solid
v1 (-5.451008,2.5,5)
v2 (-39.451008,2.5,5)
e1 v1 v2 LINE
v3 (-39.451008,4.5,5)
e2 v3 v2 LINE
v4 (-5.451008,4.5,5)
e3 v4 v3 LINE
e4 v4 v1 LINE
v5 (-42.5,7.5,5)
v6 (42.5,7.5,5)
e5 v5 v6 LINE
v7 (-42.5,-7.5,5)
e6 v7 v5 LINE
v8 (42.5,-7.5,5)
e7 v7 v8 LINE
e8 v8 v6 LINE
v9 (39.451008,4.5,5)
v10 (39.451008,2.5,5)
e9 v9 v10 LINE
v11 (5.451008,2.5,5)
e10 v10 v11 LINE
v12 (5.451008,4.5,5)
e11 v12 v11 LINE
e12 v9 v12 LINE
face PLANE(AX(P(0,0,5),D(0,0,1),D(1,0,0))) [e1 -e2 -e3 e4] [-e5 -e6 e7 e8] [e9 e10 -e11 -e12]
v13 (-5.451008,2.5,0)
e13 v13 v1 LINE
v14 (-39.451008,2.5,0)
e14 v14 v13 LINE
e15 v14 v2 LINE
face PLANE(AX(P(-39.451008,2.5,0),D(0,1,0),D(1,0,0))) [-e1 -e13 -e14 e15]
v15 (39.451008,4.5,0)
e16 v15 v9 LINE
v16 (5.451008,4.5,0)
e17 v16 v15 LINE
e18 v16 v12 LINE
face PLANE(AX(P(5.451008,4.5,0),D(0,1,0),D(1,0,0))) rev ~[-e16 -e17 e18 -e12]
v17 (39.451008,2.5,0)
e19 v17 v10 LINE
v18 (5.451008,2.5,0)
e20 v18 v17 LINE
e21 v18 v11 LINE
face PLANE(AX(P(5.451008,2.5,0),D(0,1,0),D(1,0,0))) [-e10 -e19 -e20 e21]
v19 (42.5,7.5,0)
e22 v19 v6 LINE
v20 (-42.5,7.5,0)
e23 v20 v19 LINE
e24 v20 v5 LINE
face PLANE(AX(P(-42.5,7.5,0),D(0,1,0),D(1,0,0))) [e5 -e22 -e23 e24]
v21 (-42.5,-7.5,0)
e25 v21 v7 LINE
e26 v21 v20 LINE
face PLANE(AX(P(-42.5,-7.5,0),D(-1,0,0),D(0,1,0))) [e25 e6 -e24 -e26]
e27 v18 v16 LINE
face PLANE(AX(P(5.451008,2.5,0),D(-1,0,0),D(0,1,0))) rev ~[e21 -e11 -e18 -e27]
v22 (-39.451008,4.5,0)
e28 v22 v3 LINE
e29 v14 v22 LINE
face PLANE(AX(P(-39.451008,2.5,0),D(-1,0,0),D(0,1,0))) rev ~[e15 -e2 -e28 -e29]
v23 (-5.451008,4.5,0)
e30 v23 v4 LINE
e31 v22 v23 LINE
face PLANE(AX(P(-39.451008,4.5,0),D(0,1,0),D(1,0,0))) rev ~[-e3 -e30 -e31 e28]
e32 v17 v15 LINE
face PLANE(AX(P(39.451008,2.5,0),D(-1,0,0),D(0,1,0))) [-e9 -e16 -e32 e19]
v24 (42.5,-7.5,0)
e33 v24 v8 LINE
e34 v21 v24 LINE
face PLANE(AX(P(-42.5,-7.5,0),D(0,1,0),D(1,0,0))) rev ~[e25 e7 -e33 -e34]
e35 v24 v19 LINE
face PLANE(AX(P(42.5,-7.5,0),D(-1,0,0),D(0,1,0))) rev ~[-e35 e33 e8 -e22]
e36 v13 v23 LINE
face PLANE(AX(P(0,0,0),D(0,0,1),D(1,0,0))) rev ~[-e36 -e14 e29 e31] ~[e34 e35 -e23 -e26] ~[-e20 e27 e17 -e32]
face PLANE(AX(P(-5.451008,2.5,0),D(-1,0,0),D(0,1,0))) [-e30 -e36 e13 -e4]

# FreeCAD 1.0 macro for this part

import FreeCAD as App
import Part
import Sketcher
from FreeCAD import Vector

doc = App.newDocument("Part")
body = doc.addObject("PartDesign::Body", "Body")

sketch1 = doc.addObject("Sketcher::SketchObject", "Sketch")
body.addObject(sketch1)
sketch1.AttachmentSupport = (doc.XY_Plane, [""])
sketch1.MapMode = "FlatFace"
sketch1.addGeometry([
    Part.LineSegment(Vector(-42, 8, 0), Vector(-42, -8, 0)),
    Part.LineSegment(Vector(-42, -8, 0), Vector(42, -8, 0)),
    Part.LineSegment(Vector(42, -8, 0), Vector(42, 8, 0)),
    Part.LineSegment(Vector(42, 8, 0), Vector(-42, 8, 0)),
], False)
sketch1.addConstraint([
    Sketcher.Constraint("Coincident", 0, 2, 1, 1),
    Sketcher.Constraint("Coincident", 1, 2, 2, 1),
    Sketcher.Constraint("Coincident", 2, 2, 3, 1),
    Sketcher.Constraint("Coincident", 3, 2, 0, 1),
    Sketcher.Constraint("Vertical", 0),
    Sketcher.Constraint("Horizontal", 1),
    Sketcher.Constraint("Vertical", 2),
    Sketcher.Constraint("Horizontal", 3),
    Sketcher.Constraint("Symmetric", 0, 2, 2, 2, -1, 1),
    Sketcher.Constraint("DistanceX", 1, 1, 1, 2, 85.0),
    Sketcher.Constraint("DistanceY", 0, 2, 0, 1, 15.0),
])
pad1 = doc.addObject("PartDesign::Pad", "Pad")
body.addObject(pad1)
pad1.Profile = sketch1
pad1.Length = 5

sketch2 = doc.addObject("Sketcher::SketchObject", "Sketch001")
body.addObject(sketch2)
sketch2.AttachmentSupport = (doc.XY_Plane, [""])
sketch2.MapMode = "FlatFace"
sketch2.addGeometry([
    Part.LineSegment(Vector(-39.5, 4.5, 0), Vector(-39.5, 2.5, 0)),
    Part.LineSegment(Vector(-39.5, 2.5, 0), Vector(-5.5, 2.5, 0)),
    Part.LineSegment(Vector(-5.5, 2.5, 0), Vector(-5.5, 4.5, 0)),
    Part.LineSegment(Vector(-5.5, 4.5, 0), Vector(-39.5, 4.5, 0)),
    Part.LineSegment(Vector(5.5, 4.5, 0), Vector(5.5, 2.5, 0)),
    Part.LineSegment(Vector(5.5, 2.5, 0), Vector(39.5, 2.5, 0)),
    Part.LineSegment(Vector(39.5, 2.5, 0), Vector(39.5, 4.5, 0)),
    Part.LineSegment(Vector(39.5, 4.5, 0), Vector(5.5, 4.5, 0)),
], False)
sketch2.addConstraint([
    Sketcher.Constraint("Coincident", 0, 2, 1, 1),
    Sketcher.Constraint("Coincident", 1, 2, 2, 1),
    Sketcher.Constraint("Coincident", 2, 2, 3, 1),
    Sketcher.Constraint("Coincident", 3, 2, 0, 1),
    Sketcher.Constraint("Coincident", 4, 2, 5, 1),
    Sketcher.Constraint("Coincident", 5, 2, 6, 1),
    Sketcher.Constraint("Coincident", 6, 2, 7, 1),
    Sketcher.Constraint("Coincident", 7, 2, 4, 1),
    Sketcher.Constraint("Vertical", 0),
    Sketcher.Constraint("Horizontal", 1),
    Sketcher.Constraint("Vertical", 2),
    Sketcher.Constraint("Horizontal", 3),
    Sketcher.Constraint("Vertical", 4),
    Sketcher.Constraint("Horizontal", 5),
    Sketcher.Constraint("Vertical", 6),
    Sketcher.Constraint("Horizontal", 7),
    Sketcher.Constraint("Symmetric", 1, 2, 4, 2, -2),
    Sketcher.Constraint("Symmetric", 3, 2, 6, 2, -2),
    Sketcher.Constraint("DistanceX", 1, 1, 1, 2, 34.0),
    Sketcher.Constraint("DistanceY", 0, 2, 0, 1, 2.0),
    Sketcher.Constraint("DistanceY", -1, 1, 0, 2, 2.5),
    Sketcher.Constraint("DistanceX", 0, 2, -1, 1, 39.451008),
])
pocket1 = doc.addObject("PartDesign::Pocket", "Pocket")
body.addObject(pocket1)
pocket1.Profile = sketch2
pocket1.Type = "ThroughAll"
pocket1.Reversed = True

doc.recompute()
